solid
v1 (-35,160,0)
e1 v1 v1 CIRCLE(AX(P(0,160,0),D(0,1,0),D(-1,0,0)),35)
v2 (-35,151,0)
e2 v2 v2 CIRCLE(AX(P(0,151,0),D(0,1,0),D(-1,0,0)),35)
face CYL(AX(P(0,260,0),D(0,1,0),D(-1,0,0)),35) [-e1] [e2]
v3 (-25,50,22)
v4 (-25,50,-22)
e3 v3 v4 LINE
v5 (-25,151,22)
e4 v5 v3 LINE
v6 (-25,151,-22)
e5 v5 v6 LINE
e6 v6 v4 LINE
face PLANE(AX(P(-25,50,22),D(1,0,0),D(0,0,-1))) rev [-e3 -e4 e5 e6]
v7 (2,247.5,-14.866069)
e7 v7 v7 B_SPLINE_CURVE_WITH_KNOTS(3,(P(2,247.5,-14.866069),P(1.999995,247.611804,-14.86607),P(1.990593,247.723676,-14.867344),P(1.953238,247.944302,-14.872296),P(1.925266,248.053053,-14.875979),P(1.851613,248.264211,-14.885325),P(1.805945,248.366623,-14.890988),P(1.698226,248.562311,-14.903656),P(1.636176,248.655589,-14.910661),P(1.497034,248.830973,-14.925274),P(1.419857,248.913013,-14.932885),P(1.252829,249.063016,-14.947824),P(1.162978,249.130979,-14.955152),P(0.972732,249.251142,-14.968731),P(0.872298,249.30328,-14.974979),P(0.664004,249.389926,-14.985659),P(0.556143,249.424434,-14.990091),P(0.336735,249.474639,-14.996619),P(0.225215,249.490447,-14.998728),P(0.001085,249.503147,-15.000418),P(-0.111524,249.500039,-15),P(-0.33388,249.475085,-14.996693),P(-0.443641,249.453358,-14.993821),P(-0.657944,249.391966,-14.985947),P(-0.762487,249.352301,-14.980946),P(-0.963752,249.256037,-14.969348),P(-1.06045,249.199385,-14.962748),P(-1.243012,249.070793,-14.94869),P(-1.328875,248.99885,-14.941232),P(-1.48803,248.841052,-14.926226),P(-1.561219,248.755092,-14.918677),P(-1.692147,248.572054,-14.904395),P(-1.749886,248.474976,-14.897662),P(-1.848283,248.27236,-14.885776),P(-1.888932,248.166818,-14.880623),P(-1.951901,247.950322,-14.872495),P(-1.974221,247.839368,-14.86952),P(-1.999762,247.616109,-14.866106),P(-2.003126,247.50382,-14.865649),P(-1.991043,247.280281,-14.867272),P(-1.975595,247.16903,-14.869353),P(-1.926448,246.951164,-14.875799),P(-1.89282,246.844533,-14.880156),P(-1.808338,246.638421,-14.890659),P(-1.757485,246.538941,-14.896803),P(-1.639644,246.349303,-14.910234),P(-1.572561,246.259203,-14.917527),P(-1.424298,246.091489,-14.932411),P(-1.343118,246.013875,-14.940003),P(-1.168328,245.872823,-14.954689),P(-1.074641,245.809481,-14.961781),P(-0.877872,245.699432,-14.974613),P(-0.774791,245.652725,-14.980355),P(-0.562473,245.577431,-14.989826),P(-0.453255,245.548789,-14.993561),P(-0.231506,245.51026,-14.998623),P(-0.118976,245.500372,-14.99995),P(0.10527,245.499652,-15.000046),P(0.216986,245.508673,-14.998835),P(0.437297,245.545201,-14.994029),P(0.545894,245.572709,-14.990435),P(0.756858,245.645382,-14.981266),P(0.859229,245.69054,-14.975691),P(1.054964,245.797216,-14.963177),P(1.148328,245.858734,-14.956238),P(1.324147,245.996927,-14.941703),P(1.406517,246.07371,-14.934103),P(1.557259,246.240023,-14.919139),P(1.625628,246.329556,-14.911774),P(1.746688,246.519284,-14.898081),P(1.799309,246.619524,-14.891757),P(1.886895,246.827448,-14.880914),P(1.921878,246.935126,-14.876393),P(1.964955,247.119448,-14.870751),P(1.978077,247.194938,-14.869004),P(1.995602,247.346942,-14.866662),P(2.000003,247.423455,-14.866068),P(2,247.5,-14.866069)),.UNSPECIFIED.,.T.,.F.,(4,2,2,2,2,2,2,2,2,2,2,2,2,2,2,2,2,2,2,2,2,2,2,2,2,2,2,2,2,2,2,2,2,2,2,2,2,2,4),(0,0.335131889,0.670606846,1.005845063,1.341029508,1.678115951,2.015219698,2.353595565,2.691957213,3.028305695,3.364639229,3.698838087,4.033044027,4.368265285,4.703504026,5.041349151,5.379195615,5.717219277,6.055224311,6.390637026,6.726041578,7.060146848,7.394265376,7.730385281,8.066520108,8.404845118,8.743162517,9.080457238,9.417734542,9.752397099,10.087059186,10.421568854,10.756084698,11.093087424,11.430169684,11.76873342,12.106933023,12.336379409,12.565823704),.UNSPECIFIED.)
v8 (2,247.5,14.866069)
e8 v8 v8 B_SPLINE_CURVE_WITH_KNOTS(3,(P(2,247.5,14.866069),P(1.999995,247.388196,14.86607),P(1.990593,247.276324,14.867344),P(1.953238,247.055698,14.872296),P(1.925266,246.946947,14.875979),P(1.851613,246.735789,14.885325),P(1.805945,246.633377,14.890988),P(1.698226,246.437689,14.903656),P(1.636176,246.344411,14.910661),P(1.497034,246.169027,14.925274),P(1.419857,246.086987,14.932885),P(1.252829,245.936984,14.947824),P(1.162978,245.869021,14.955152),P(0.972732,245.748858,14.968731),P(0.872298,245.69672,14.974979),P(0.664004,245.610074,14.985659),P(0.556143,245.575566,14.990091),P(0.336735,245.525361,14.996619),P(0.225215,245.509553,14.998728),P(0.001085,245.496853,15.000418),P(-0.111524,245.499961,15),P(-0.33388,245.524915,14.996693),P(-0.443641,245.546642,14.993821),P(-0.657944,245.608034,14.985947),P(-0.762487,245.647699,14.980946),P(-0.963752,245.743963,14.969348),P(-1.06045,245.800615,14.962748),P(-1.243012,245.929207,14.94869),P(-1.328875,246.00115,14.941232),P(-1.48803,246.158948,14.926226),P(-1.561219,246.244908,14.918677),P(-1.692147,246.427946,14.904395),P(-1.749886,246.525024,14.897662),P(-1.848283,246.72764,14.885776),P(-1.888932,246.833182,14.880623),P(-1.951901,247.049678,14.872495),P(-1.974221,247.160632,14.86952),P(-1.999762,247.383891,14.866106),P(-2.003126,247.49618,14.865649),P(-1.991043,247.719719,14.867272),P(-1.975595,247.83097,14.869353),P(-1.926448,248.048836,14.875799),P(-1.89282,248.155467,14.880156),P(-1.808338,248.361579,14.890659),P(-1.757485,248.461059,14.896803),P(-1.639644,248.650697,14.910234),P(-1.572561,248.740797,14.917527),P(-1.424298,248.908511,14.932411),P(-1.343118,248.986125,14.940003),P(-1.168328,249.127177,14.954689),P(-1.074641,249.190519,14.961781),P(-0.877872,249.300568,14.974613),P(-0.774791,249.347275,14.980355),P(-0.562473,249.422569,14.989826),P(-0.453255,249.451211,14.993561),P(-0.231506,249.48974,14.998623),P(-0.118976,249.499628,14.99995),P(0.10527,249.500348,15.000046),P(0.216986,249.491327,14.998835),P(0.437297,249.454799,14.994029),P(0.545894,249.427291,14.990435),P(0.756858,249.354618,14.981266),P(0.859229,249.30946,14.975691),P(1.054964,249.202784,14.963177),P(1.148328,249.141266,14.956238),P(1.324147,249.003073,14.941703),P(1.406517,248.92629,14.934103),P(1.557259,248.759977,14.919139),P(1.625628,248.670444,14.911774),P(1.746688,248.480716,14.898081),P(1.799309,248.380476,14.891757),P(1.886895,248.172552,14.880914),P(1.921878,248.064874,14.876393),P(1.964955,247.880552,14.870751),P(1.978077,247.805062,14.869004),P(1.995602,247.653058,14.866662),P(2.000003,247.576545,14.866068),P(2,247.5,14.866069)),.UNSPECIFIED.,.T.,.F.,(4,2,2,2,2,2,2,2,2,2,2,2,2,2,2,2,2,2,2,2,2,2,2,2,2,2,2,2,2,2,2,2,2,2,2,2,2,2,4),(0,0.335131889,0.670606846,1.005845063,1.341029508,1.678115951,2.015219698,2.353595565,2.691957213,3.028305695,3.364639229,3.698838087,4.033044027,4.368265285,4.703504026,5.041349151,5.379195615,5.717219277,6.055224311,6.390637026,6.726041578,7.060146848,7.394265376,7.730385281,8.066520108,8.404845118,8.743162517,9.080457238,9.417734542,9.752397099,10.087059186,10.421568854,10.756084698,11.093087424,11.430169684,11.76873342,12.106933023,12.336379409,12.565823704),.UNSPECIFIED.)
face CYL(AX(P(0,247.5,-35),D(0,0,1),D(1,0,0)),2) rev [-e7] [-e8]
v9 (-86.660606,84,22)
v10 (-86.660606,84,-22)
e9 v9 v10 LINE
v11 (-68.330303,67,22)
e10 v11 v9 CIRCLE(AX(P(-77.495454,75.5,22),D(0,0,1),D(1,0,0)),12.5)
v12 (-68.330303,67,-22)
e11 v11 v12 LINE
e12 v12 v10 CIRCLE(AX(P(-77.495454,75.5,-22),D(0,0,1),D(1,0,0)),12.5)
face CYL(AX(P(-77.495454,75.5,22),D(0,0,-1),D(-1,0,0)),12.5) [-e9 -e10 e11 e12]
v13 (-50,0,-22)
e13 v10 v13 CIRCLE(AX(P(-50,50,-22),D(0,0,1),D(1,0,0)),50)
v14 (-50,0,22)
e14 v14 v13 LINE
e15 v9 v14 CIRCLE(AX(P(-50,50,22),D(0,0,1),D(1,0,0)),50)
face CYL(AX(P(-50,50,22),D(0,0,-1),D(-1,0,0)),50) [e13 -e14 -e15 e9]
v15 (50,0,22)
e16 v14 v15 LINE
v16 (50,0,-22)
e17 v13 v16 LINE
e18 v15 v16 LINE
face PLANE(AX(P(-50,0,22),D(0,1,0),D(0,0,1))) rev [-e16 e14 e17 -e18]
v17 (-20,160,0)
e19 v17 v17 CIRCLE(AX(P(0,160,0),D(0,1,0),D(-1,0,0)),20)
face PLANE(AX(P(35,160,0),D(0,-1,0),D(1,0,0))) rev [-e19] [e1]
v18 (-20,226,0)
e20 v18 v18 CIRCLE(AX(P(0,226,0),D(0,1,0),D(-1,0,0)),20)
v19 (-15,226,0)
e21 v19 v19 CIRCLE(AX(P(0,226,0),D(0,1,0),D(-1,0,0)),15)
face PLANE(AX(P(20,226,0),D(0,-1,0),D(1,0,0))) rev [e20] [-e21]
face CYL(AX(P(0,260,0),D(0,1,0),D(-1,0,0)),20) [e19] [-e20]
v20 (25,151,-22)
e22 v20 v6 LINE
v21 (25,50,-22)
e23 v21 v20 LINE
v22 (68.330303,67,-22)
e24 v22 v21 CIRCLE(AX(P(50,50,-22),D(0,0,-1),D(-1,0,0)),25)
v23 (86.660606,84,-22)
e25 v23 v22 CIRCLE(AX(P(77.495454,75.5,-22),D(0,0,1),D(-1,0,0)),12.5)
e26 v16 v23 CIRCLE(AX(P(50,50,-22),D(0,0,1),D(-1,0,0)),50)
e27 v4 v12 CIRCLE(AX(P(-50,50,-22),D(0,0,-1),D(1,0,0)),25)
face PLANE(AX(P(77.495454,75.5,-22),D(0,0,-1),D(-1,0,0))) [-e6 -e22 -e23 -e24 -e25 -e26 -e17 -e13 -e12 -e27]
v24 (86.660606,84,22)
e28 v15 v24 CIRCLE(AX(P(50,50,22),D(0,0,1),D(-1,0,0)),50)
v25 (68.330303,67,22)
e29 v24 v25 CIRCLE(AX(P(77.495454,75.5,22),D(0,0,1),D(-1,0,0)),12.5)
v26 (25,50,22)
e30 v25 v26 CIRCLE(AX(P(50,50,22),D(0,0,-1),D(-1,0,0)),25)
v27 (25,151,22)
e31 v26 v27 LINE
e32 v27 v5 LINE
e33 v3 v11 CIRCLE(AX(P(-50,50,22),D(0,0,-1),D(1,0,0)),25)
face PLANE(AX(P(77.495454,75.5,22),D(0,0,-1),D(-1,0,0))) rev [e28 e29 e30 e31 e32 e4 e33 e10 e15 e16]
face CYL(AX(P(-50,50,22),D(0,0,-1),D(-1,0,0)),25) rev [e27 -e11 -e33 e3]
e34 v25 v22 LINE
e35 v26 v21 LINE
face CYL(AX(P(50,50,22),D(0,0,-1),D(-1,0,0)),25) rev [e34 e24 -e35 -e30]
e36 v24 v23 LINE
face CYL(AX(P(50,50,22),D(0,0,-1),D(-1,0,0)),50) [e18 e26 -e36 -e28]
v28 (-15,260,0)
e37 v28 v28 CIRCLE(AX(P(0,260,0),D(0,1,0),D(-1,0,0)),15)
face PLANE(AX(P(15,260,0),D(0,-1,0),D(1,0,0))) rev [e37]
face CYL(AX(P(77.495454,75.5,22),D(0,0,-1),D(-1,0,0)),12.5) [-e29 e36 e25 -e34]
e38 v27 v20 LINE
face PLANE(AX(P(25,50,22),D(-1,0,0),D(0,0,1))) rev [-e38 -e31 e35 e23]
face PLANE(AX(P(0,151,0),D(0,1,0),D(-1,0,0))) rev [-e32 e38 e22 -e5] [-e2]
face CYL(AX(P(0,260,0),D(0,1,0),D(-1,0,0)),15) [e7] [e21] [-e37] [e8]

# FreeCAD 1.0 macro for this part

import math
import FreeCAD as App
import Part
import Sketcher

V = App.Vector
Q = App.Units.Quantity


def add_polygon(sketch, points):
    """Adds a closed chain of lines whose ends are joined by coincident constraints."""
    first, n = sketch.GeometryCount, len(points)
    for a, b in zip(points, points[1:] + points[:1]):
        sketch.addGeometry(Part.LineSegment(App.Vector(*a, 0), App.Vector(*b, 0)), False)
    for i in range(n):
        sketch.addConstraint(Sketcher.Constraint("Coincident", first + i, 2, first + (i + 1) % n, 1))

doc = App.newDocument("Part")
body = doc.addObject("PartDesign::Body", "Body")

# Sketch on XY plane
sketch1 = doc.addObject("Sketcher::SketchObject", "Sketch")
body.addObject(sketch1)
sketch1.AttachmentSupport = (doc.XY_Plane, [""])
sketch1.MapMode = "FlatFace"
sketch1.addGeometry(Part.LineSegment(V(-50, 0, 0), V(50, 0, 0)), False)
sketch1.addGeometry(Part.ArcOfCircle(Part.Circle(V(50, 50, 0), V(0, 0, 1), 50), math.radians(-90), math.radians(43)), False)
sketch1.addGeometry(Part.ArcOfCircle(Part.Circle(V(77, 76, 0), V(0, 0, 1), 12), math.radians(43), math.radians(223)), False)
sketch1.addGeometry(Part.ArcOfCircle(Part.Circle(V(50, 50, 0), V(0, 0, 1), 25), math.radians(180), math.radians(403)), False)
sketch1.addGeometry(Part.LineSegment(V(25, 50, 0), V(25, 151, 0)), False)
sketch1.addGeometry(Part.LineSegment(V(25, 151, 0), V(-25, 151, 0)), False)
sketch1.addGeometry(Part.LineSegment(V(-25, 151, 0), V(-25, 50, 0)), False)
sketch1.addGeometry(Part.ArcOfCircle(Part.Circle(V(-50, 50, 0), V(0, 0, 1), 25), math.radians(137), math.radians(360)), False)
sketch1.addGeometry(Part.ArcOfCircle(Part.Circle(V(-77, 76, 0), V(0, 0, 1), 12), math.radians(-43), math.radians(137)), False)
sketch1.addGeometry(Part.ArcOfCircle(Part.Circle(V(-50, 50, 0), V(0, 0, 1), 50), math.radians(137), math.radians(270)), False)
sketch1.addConstraint(Sketcher.Constraint("Tangent", 0, 2, 1, 1))
sketch1.addConstraint(Sketcher.Constraint("Tangent", 1, 2, 2, 1))
sketch1.addConstraint(Sketcher.Constraint("Tangent", 2, 2, 3, 2))
sketch1.addConstraint(Sketcher.Constraint("Tangent", 3, 1, 4, 1))
sketch1.addConstraint(Sketcher.Constraint("Coincident", 4, 2, 5, 1))
sketch1.addConstraint(Sketcher.Constraint("Coincident", 5, 2, 6, 1))
sketch1.addConstraint(Sketcher.Constraint("Tangent", 6, 2, 7, 2))
sketch1.addConstraint(Sketcher.Constraint("Tangent", 7, 1, 8, 1))
sketch1.addConstraint(Sketcher.Constraint("Tangent", 8, 2, 9, 1))
sketch1.addConstraint(Sketcher.Constraint("Tangent", 9, 2, 0, 1))
sketch1.addConstraint(Sketcher.Constraint("Horizontal", 0))
sketch1.addConstraint(Sketcher.Constraint("Vertical", 4))
sketch1.addConstraint(Sketcher.Constraint("Horizontal", 5))
sketch1.addConstraint(Sketcher.Constraint("Vertical", 6))
sketch1.addConstraint(Sketcher.Constraint("Coincident", 3, 3, 1, 3))
sketch1.addConstraint(Sketcher.Constraint("Coincident", 9, 3, 7, 3))
sketch1.addConstraint(Sketcher.Constraint("Equal", 3, 7))
sketch1.addConstraint(Sketcher.Constraint("Equal", 2, 8))
sketch1.addConstraint(Sketcher.Constraint("Symmetric", 0, 2, 9, 2, -1, 1))
sketch1.addConstraint(Sketcher.Constraint("Horizontal", 2, 3, 8, 3))
sketch1.addConstraint(Sketcher.Constraint("Radius", 1, Q("50 mm")))
sketch1.addConstraint(Sketcher.Constraint("Radius", 3, Q("25 mm")))
sketch1.addConstraint(Sketcher.Constraint("DistanceX", 0, 1, 0, 2, Q("100 mm")))
sketch1.addConstraint(Sketcher.Constraint("DistanceY", 4, 1, 4, 2, Q("101 mm")))
sketch1.addConstraint(Sketcher.Constraint("DistanceY", -1, 1, 1, 2, Q("84 mm")))
pad1 = doc.addObject("PartDesign::Pad", "Pad")
body.addObject(pad1)
pad1.Profile = sketch1
pad1.Length = 44
pad1.Midplane = True

# Sketch on XY plane
sketch2 = doc.addObject("Sketcher::SketchObject", "Sketch001")
body.addObject(sketch2)
sketch2.AttachmentSupport = (doc.XY_Plane, [""])
sketch2.MapMode = "FlatFace"
add_polygon(sketch2, [(0, 151), (35, 151), (35, 160), (20, 160), (20, 226), (15, 226), (15, 260), (0, 260)])  # lines 0-7
sketch2.addConstraint(Sketcher.Constraint("Horizontal", 0))
sketch2.addConstraint(Sketcher.Constraint("Vertical", 1))
sketch2.addConstraint(Sketcher.Constraint("Horizontal", 2))
sketch2.addConstraint(Sketcher.Constraint("Vertical", 3))
sketch2.addConstraint(Sketcher.Constraint("Horizontal", 4))
sketch2.addConstraint(Sketcher.Constraint("Vertical", 5))
sketch2.addConstraint(Sketcher.Constraint("Horizontal", 6))
sketch2.addConstraint(Sketcher.Constraint("Vertical", 7))
sketch2.addConstraint(Sketcher.Constraint("PointOnObject", 6, 2, -2))
sketch2.addConstraint(Sketcher.Constraint("Equal", 2, 6))
sketch2.addConstraint(Sketcher.Constraint("DistanceX", 0, 1, 0, 2, Q("35 mm")))
sketch2.addConstraint(Sketcher.Constraint("DistanceX", 2, 2, 2, 1, Q("15 mm")))
sketch2.addConstraint(Sketcher.Constraint("DistanceY", 1, 1, 1, 2, Q("9 mm")))
sketch2.addConstraint(Sketcher.Constraint("DistanceY", 3, 1, 3, 2, Q("66 mm")))
sketch2.addConstraint(Sketcher.Constraint("DistanceY", 5, 1, 5, 2, Q("34 mm")))
sketch2.addConstraint(Sketcher.Constraint("DistanceY", -1, 1, 0, 2, Q("151 mm")))
revolution = doc.addObject("PartDesign::Revolution", "Revolution")
body.addObject(revolution)
revolution.Profile = sketch2
revolution.ReferenceAxis = (sketch2, ["V_Axis"])
revolution.Angle = 360

# Sketch on XY plane
sketch3 = doc.addObject("Sketcher::SketchObject", "Sketch002")
body.addObject(sketch3)
sketch3.AttachmentSupport = (doc.XY_Plane, [""])
sketch3.MapMode = "FlatFace"
sketch3.addGeometry(Part.Circle(V(0, 247.5, 0), V(0, 0, 1), 2), False)
sketch3.addConstraint(Sketcher.Constraint("PointOnObject", 0, 3, -2))
sketch3.addConstraint(Sketcher.Constraint("Diameter", 0, Q("4 mm")))
sketch3.addConstraint(Sketcher.Constraint("DistanceY", -1, 1, 0, 3, Q("247.5 mm")))
pocket1 = doc.addObject("PartDesign::Pocket", "Pocket")
body.addObject(pocket1)
pocket1.Profile = sketch3
pocket1.Type = "ThroughAll"
pocket1.Midplane = True

doc.recompute()
